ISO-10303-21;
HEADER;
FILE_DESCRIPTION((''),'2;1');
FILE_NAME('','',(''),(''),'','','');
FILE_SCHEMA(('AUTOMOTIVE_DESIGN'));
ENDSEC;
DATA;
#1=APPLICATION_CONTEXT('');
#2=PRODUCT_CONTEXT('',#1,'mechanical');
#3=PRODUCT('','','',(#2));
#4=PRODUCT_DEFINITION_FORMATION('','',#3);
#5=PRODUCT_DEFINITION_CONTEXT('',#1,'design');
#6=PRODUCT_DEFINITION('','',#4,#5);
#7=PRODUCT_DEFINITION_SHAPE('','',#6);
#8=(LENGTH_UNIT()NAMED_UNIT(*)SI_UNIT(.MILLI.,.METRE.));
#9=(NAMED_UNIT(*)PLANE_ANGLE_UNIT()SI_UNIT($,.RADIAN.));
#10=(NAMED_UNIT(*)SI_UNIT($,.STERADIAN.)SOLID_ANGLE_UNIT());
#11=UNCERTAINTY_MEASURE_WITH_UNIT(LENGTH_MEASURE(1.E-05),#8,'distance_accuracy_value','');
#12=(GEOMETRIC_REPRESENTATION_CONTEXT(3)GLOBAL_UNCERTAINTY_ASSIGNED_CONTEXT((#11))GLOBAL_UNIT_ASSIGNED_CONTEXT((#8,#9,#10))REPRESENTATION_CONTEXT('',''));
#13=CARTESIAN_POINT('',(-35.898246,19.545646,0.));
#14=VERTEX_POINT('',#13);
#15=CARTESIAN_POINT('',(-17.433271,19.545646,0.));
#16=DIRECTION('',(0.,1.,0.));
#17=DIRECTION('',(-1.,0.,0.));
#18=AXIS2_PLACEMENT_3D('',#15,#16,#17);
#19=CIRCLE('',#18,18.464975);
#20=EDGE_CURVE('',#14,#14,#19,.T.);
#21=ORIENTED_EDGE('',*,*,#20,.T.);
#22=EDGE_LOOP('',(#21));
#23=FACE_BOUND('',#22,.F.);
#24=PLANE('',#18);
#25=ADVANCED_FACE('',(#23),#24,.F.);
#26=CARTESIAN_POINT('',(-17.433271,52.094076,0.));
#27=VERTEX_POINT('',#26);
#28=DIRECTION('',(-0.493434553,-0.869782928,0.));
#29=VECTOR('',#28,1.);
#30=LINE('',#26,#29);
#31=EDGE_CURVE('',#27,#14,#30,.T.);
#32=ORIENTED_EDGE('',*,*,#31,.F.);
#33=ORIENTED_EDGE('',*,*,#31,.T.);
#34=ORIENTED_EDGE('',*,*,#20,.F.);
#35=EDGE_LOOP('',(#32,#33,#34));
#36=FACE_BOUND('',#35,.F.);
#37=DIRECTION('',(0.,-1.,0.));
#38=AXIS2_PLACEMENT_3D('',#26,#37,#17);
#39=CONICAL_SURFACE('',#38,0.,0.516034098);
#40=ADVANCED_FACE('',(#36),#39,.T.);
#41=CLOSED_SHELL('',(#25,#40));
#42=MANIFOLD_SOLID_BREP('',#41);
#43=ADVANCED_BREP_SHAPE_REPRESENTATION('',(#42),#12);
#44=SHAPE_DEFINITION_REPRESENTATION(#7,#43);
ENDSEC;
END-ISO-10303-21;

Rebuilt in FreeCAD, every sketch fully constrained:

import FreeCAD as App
import Part
import Sketcher
from FreeCAD import Vector

doc = App.newDocument("Part")
body = doc.addObject("PartDesign::Body", "Body")

# Sketch on XY plane
sketch1 = body.newObject("Sketcher::SketchObject", "Sketch")
sketch1.AttachmentSupport = (doc.getObject("XY_Plane"), [""])
sketch1.MapMode = "FlatFace"
sketch1.addGeometry(Part.LineSegment(Vector(-17, 20, 0), Vector(-17, 52, 0)), False)
sketch1.addGeometry(Part.LineSegment(Vector(-17, 52, 0), Vector(-36, 20, 0)), False)
sketch1.addGeometry(Part.LineSegment(Vector(-36, 20, 0), Vector(-17, 20, 0)), False)
sketch1.addGeometry(Part.LineSegment(Vector(-17, 20, 0), Vector(-17, 52, 0)), True)  # axis
sketch1.addConstraint(Sketcher.Constraint("Coincident", 0, 2, 1, 1))
sketch1.addConstraint(Sketcher.Constraint("Coincident", 1, 2, 2, 1))
sketch1.addConstraint(Sketcher.Constraint("Coincident", 2, 2, 0, 1))
sketch1.addConstraint(Sketcher.Constraint("Vertical", 0))
sketch1.addConstraint(Sketcher.Constraint("Horizontal", 2))
sketch1.addConstraint(Sketcher.Constraint("Vertical", 3))
sketch1.addConstraint(Sketcher.Constraint("Coincident", 3, 1, 2, 2))
sketch1.addConstraint(Sketcher.Constraint("Equal", 0, 3))
sketch1.addConstraint(Sketcher.Constraint("DistanceY", 0, 1, 0, 2, 32.54843))
sketch1.addConstraint(Sketcher.Constraint("DistanceX", 2, 1, 2, 2, 18.464975))
sketch1.addConstraint(Sketcher.Constraint("DistanceX", 0, 2, -1, 1, 17.433271))
sketch1.addConstraint(Sketcher.Constraint("DistanceY", -1, 1, 0, 2, 52.094076))
revolution = body.newObject("PartDesign::Revolution", "Revolution")
revolution.Profile = sketch1
revolution.ReferenceAxis = (sketch1, ["Axis0"])
revolution.Angle = 360

doc.recompute()
